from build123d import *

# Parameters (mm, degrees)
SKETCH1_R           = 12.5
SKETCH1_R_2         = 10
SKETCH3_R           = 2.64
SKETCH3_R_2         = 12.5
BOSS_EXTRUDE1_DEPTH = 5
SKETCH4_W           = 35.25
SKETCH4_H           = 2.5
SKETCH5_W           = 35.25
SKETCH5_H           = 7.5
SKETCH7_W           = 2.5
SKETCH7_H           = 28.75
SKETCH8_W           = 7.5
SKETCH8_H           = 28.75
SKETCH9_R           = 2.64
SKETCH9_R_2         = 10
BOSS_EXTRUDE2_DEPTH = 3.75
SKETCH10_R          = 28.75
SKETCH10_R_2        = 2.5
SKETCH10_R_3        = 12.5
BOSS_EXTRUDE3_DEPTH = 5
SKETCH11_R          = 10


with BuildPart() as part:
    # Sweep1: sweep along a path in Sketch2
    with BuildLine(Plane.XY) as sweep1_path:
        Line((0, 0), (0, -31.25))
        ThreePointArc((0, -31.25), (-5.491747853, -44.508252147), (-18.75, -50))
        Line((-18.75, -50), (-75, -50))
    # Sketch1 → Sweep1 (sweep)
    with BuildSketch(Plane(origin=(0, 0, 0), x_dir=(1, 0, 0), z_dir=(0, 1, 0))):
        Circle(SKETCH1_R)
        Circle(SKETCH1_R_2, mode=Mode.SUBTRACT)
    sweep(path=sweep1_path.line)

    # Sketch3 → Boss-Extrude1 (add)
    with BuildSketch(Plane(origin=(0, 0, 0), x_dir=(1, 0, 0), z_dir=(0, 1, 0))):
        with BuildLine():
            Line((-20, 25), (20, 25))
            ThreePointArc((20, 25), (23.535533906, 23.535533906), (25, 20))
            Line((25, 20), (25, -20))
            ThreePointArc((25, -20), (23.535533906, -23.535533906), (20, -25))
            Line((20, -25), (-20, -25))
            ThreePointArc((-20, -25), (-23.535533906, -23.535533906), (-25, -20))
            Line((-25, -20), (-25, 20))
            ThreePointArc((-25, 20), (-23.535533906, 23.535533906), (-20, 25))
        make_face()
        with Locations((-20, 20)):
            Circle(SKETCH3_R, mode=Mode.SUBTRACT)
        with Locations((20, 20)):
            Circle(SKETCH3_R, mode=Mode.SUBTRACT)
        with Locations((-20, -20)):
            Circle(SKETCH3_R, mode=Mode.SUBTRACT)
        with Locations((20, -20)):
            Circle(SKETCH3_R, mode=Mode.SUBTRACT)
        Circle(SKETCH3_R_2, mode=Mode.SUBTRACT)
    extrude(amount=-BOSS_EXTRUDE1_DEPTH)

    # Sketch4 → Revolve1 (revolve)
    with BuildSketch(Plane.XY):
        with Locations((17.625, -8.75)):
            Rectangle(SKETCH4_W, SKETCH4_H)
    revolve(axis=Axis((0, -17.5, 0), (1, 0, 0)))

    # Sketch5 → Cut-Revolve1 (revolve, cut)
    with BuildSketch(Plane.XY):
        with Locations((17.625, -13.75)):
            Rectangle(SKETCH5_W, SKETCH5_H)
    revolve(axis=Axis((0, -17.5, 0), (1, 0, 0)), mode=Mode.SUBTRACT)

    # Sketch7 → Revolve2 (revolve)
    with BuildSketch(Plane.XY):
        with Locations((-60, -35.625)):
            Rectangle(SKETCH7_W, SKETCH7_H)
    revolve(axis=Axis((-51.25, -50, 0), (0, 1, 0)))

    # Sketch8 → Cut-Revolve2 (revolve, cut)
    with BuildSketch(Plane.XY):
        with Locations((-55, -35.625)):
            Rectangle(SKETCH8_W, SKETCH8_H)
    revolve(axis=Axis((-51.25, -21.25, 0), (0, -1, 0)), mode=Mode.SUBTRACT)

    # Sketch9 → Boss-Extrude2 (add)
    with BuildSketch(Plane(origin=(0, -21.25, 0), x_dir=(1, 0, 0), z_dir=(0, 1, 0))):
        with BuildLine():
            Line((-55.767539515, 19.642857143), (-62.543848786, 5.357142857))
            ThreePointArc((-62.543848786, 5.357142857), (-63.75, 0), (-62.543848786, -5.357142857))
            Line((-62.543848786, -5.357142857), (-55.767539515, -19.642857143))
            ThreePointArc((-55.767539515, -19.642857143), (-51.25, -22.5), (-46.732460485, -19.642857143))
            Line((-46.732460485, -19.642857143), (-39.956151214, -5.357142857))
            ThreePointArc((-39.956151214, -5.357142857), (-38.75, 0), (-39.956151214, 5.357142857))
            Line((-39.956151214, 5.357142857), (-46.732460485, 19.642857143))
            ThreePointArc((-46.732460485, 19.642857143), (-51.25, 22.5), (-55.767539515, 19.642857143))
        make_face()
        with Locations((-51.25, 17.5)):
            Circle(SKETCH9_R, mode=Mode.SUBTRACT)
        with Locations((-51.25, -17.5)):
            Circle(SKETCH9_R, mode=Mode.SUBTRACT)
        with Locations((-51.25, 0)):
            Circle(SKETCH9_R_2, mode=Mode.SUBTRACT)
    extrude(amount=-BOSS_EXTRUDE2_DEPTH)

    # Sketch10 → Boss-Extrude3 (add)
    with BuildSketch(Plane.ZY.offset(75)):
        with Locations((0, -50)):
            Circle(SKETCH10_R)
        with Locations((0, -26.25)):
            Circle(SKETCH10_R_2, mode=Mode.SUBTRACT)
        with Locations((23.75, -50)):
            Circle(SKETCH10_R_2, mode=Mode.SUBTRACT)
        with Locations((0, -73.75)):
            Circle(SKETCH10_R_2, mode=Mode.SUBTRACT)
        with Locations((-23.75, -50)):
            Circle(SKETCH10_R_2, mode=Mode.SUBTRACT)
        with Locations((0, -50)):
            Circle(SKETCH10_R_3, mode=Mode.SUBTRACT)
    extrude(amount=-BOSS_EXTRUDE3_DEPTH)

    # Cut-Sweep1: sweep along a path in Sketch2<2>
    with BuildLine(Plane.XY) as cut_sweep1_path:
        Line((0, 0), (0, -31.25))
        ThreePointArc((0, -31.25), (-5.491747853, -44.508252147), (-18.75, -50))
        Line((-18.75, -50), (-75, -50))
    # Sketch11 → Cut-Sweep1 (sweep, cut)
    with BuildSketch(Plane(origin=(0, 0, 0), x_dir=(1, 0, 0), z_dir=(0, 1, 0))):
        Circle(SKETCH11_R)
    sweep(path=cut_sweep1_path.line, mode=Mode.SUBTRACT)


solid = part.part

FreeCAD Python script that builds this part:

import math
import FreeCAD as App
import Part
import Sketcher

V = App.Vector


def add_polygon(sketch, points):
    """Adds a closed chain of lines whose ends are joined by coincident constraints."""
    first, n = sketch.GeometryCount, len(points)
    for a, b in zip(points, points[1:] + points[:1]):
        sketch.addGeometry(Part.LineSegment(App.Vector(*a, 0), App.Vector(*b, 0)), False)
    for i in range(n):
        sketch.addConstraint(Sketcher.Constraint("Coincident", first + i, 2, first + (i + 1) % n, 1))

doc = App.newDocument("Part")
body = doc.addObject("PartDesign::Body", "Body")

sketch1 = body.newObject("Sketcher::SketchObject", "Sketch")
sketch1.AttachmentSupport = (doc.getObject("XZ_Plane"), [""])
sketch1.MapMode = "FlatFace"
sketch1.addGeometry(Part.Circle(V(0, 0, 0), V(0, 0, 1), 12), False)
sketch1.addGeometry(Part.Circle(V(0, 0, 0), V(0, 0, 1), 10), False)
sketch1.addConstraint(Sketcher.Constraint("Coincident", 0, 3, -1, 1))
sketch1.addConstraint(Sketcher.Constraint("Coincident", 1, 3, -1, 1))
sketch1.addConstraint(Sketcher.Constraint("Diameter", 0, 25.0))
sketch1.addConstraint(Sketcher.Constraint("Diameter", 1, 20.0))

sketch2 = body.newObject("Sketcher::SketchObject", "Sketch001")
sketch2.AttachmentSupport = (doc.getObject("XY_Plane"), [""])
sketch2.MapMode = "FlatFace"
sketch2.addGeometry(Part.LineSegment(V(0, 0, 0), V(0, -31, 0)), False)
sketch2.addGeometry(Part.ArcOfCircle(Part.Circle(V(-19, -31, 0), V(0, 0, 1), 19), math.radians(-90), math.radians(0)), False)
sketch2.addGeometry(Part.LineSegment(V(-19, -50, 0), V(-75, -50, 0)), False)
sketch2.addConstraint(Sketcher.Constraint("Tangent", 0, 2, 1, 2))
sketch2.addConstraint(Sketcher.Constraint("Tangent", 1, 1, 2, 1))
sketch2.addConstraint(Sketcher.Constraint("Vertical", 0))
sketch2.addConstraint(Sketcher.Constraint("Horizontal", 2))
sketch2.addConstraint(Sketcher.Constraint("Coincident", 0, 1, -1, 1))
sketch2.addConstraint(Sketcher.Constraint("Radius", 1, 18.75))
sketch2.addConstraint(Sketcher.Constraint("DistanceY", 1, 1, -1, 1, 50.0))
sketch2.addConstraint(Sketcher.Constraint("DistanceX", 2, 2, -1, 1, 75.0))
doc.recompute()

additivepipe = body.newObject("PartDesign::AdditivePipe", "AdditivePipe")
additivepipe.Profile = sketch1
additivepipe.Spine = (sketch2, ["Edge1", "Edge2", "Edge3"])

sketch3 = body.newObject("Sketcher::SketchObject", "Sketch002")
sketch3.AttachmentSupport = (doc.getObject("XZ_Plane"), [""])
sketch3.MapMode = "FlatFace"
sketch3.addGeometry(Part.LineSegment(V(20, -25, 0), V(-20, -25, 0)), False)
sketch3.addGeometry(Part.ArcOfCircle(Part.Circle(V(-20, -20, 0), V(0, 0, 1), 5), math.radians(180), math.radians(270)), False)
sketch3.addGeometry(Part.LineSegment(V(-25, -20, 0), V(-25, 20, 0)), False)
sketch3.addGeometry(Part.ArcOfCircle(Part.Circle(V(-20, 20, 0), V(0, 0, 1), 5), math.radians(90), math.radians(180)), False)
sketch3.addGeometry(Part.LineSegment(V(-20, 25, 0), V(20, 25, 0)), False)
sketch3.addGeometry(Part.ArcOfCircle(Part.Circle(V(20, 20, 0), V(0, 0, 1), 5), math.radians(0), math.radians(90)), False)
sketch3.addGeometry(Part.LineSegment(V(25, 20, 0), V(25, -20, 0)), False)
sketch3.addGeometry(Part.ArcOfCircle(Part.Circle(V(20, -20, 0), V(0, 0, 1), 5), math.radians(-90), math.radians(0)), False)
sketch3.addGeometry(Part.Circle(V(20, 20, 0), V(0, 0, 1), 2.6), False)
sketch3.addGeometry(Part.Circle(V(-20, 20, 0), V(0, 0, 1), 2.6), False)
sketch3.addGeometry(Part.Circle(V(20, -20, 0), V(0, 0, 1), 2.6), False)
sketch3.addGeometry(Part.Circle(V(0, 0, 0), V(0, 0, 1), 12.5), False)
sketch3.addGeometry(Part.Circle(V(-20, -20, 0), V(0, 0, 1), 2.6), False)
sketch3.addConstraint(Sketcher.Constraint("Tangent", 0, 2, 1, 2))
sketch3.addConstraint(Sketcher.Constraint("Tangent", 1, 1, 2, 1))
sketch3.addConstraint(Sketcher.Constraint("Tangent", 2, 2, 3, 2))
sketch3.addConstraint(Sketcher.Constraint("Tangent", 3, 1, 4, 1))
sketch3.addConstraint(Sketcher.Constraint("Tangent", 4, 2, 5, 2))
sketch3.addConstraint(Sketcher.Constraint("Tangent", 5, 1, 6, 1))
sketch3.addConstraint(Sketcher.Constraint("Tangent", 6, 2, 7, 2))
sketch3.addConstraint(Sketcher.Constraint("Tangent", 7, 1, 0, 1))
sketch3.addConstraint(Sketcher.Constraint("Horizontal", 0))
sketch3.addConstraint(Sketcher.Constraint("Vertical", 2))
sketch3.addConstraint(Sketcher.Constraint("Horizontal", 4))
sketch3.addConstraint(Sketcher.Constraint("Vertical", 6))
sketch3.addConstraint(Sketcher.Constraint("Coincident", 11, 3, -1, 1))
sketch3.addConstraint(Sketcher.Constraint("Coincident", 8, 3, 5, 3))
sketch3.addConstraint(Sketcher.Constraint("Coincident", 9, 3, 3, 3))
sketch3.addConstraint(Sketcher.Constraint("Coincident", 10, 3, 7, 3))
sketch3.addConstraint(Sketcher.Constraint("Coincident", 12, 3, 1, 3))
sketch3.addConstraint(Sketcher.Constraint("Equal", 1, 3))
sketch3.addConstraint(Sketcher.Constraint("Equal", 3, 5))
sketch3.addConstraint(Sketcher.Constraint("Equal", 5, 7))
sketch3.addConstraint(Sketcher.Constraint("Equal", 8, 9))
sketch3.addConstraint(Sketcher.Constraint("Equal", 9, 10))
sketch3.addConstraint(Sketcher.Constraint("Equal", 10, 12))
sketch3.addConstraint(Sketcher.Constraint("Symmetric", 1, 3, 5, 3, -1, 1))
sketch3.addConstraint(Sketcher.Constraint("Equal", 4, 2))
sketch3.addConstraint(Sketcher.Constraint("Diameter", 11, 25.0))
sketch3.addConstraint(Sketcher.Constraint("Radius", 1, 5.0))
sketch3.addConstraint(Sketcher.Constraint("Diameter", 8, 5.28))
sketch3.addConstraint(Sketcher.Constraint("DistanceX", 0, 2, 0, 1, 40.0))
pad1 = body.newObject("PartDesign::Pad", "Pad")
pad1.Profile = sketch3
pad1.Length = 5

sketch4 = body.newObject("Sketcher::SketchObject", "Sketch003")
sketch4.AttachmentSupport = (doc.getObject("XY_Plane"), [""])
sketch4.MapMode = "FlatFace"
add_polygon(sketch4, [(0, -7.5), (0, -10), (35.2, -10), (35.2, -7.5)])
sketch4.addGeometry(Part.LineSegment(V(0, -17.5, 0), V(35.2, -17.5, 0)), True)
sketch4.addConstraint(Sketcher.Constraint("Vertical", 0))
sketch4.addConstraint(Sketcher.Constraint("Horizontal", 1))
sketch4.addConstraint(Sketcher.Constraint("Vertical", 2))
sketch4.addConstraint(Sketcher.Constraint("Horizontal", 3))
sketch4.addConstraint(Sketcher.Constraint("Horizontal", 4))
sketch4.addConstraint(Sketcher.Constraint("PointOnObject", 0, 2, -2))
sketch4.addConstraint(Sketcher.Constraint("PointOnObject", 4, 1, -2))
sketch4.addConstraint(Sketcher.Constraint("Vertical", 2, 2, 4, 2))
sketch4.addConstraint(Sketcher.Constraint("DistanceY", 0, 2, 0, 1, 2.5))
sketch4.addConstraint(Sketcher.Constraint("DistanceY", 0, 2, -1, 1, 10.0))
sketch4.addConstraint(Sketcher.Constraint("DistanceY", 4, 1, 3, 2, 10.0))
sketch4.addConstraint(Sketcher.Constraint("DistanceX", 1, 1, 1, 2, 35.25))
revolution = body.newObject("PartDesign::Revolution", "Revolution")
revolution.Profile = sketch4
revolution.ReferenceAxis = (sketch4, ["Axis0"])
revolution.Angle = 360

sketch5 = body.newObject("Sketcher::SketchObject", "Sketch004")
sketch5.AttachmentSupport = (doc.getObject("XY_Plane"), [""])
sketch5.MapMode = "FlatFace"
add_polygon(sketch5, [(0, -10), (0, -18), (35, -18), (35, -10)])
sketch5.addGeometry(Part.LineSegment(V(0, -18, 0), V(35, -18, 0)), True)
sketch5.addConstraint(Sketcher.Constraint("Vertical", 0))
sketch5.addConstraint(Sketcher.Constraint("Horizontal", 1))
sketch5.addConstraint(Sketcher.Constraint("Vertical", 2))
sketch5.addConstraint(Sketcher.Constraint("Horizontal", 3))
sketch5.addConstraint(Sketcher.Constraint("Horizontal", 4))
sketch5.addConstraint(Sketcher.Constraint("Coincident", 4, 1, 0, 2))
sketch5.addConstraint(Sketcher.Constraint("PointOnObject", 0, 2, -2))
sketch5.addConstraint(Sketcher.Constraint("Vertical", 2, 2, 4, 2))
sketch5.addConstraint(Sketcher.Constraint("DistanceY", 0, 2, 0, 1, 7.5))
sketch5.addConstraint(Sketcher.Constraint("DistanceY", 2, 2, -1, 1, 10.0))
sketch5.addConstraint(Sketcher.Constraint("DistanceX", 1, 1, 1, 2, 35.25))
groove = body.newObject("PartDesign::Groove", "Groove")
groove.Profile = sketch5
groove.ReferenceAxis = (sketch5, ["Axis0"])
groove.Angle = 360

sketch6 = body.newObject("Sketcher::SketchObject", "Sketch005")
sketch6.AttachmentSupport = (doc.getObject("XY_Plane"), [""])
sketch6.MapMode = "FlatFace"
add_polygon(sketch6, [(-61.2, -21.2), (-61.2, -50), (-58.8, -50), (-58.8, -21.2)])
sketch6.addGeometry(Part.LineSegment(V(-51.2, -50, 0), V(-51.2, -21.2, 0)), True)
sketch6.addConstraint(Sketcher.Constraint("Vertical", 0))
sketch6.addConstraint(Sketcher.Constraint("Horizontal", 1))
sketch6.addConstraint(Sketcher.Constraint("Vertical", 2))
sketch6.addConstraint(Sketcher.Constraint("Horizontal", 3))
sketch6.addConstraint(Sketcher.Constraint("Vertical", 4))
sketch6.addConstraint(Sketcher.Constraint("Horizontal", 1, 2, 4, 1))
sketch6.addConstraint(Sketcher.Constraint("Horizontal", 3, 2, 4, 2))
sketch6.addConstraint(Sketcher.Constraint("DistanceX", 1, 1, 1, 2, 2.5))
sketch6.addConstraint(Sketcher.Constraint("DistanceY", 0, 2, -1, 1, 50.0))
sketch6.addConstraint(Sketcher.Constraint("DistanceX", 0, 2, 4, 1, 10.0))
sketch6.addConstraint(Sketcher.Constraint("DistanceY", 0, 2, 0, 1, 28.75))
sketch6.addConstraint(Sketcher.Constraint("DistanceX", 0, 2, -1, 1, 61.25))
revolution2 = body.newObject("PartDesign::Revolution", "Revolution001")
revolution2.Profile = sketch6
revolution2.ReferenceAxis = (sketch6, ["Axis0"])
revolution2.Angle = 360

sketch7 = body.newObject("Sketcher::SketchObject", "Sketch006")
sketch7.AttachmentSupport = (doc.getObject("XY_Plane"), [""])
sketch7.MapMode = "FlatFace"
add_polygon(sketch7, [(-59, -21), (-59, -50), (-51, -50), (-51, -21)])
sketch7.addGeometry(Part.LineSegment(V(-51, -21, 0), V(-51, -50, 0)), True)
sketch7.addConstraint(Sketcher.Constraint("Vertical", 0))
sketch7.addConstraint(Sketcher.Constraint("Horizontal", 1))
sketch7.addConstraint(Sketcher.Constraint("Vertical", 2))
sketch7.addConstraint(Sketcher.Constraint("Horizontal", 3))
sketch7.addConstraint(Sketcher.Constraint("Vertical", 4))
sketch7.addConstraint(Sketcher.Constraint("Coincident", 4, 1, 2, 2))
sketch7.addConstraint(Sketcher.Constraint("Horizontal", 0, 2, 4, 2))
sketch7.addConstraint(Sketcher.Constraint("DistanceX", 1, 1, 1, 2, 7.5))
sketch7.addConstraint(Sketcher.Constraint("DistanceY", 0, 2, -1, 1, 50.0))
sketch7.addConstraint(Sketcher.Constraint("DistanceY", 0, 2, 0, 1, 28.75))
sketch7.addConstraint(Sketcher.Constraint("DistanceX", 0, 2, -1, 1, 58.75))
groove2 = body.newObject("PartDesign::Groove", "Groove001")
groove2.Profile = sketch7
groove2.ReferenceAxis = (sketch7, ["Axis0"])
groove2.Angle = 360

sketch8 = body.newObject("Sketcher::SketchObject", "Sketch007")
sketch8.AttachmentSupport = (doc.getObject("XZ_Plane"), [""])
sketch8.MapMode = "FlatFace"
sketch8.AttachmentOffset = App.Placement(V(0, 0, 21.25), App.Rotation())
sketch8.addGeometry(Part.LineSegment(V(-55.8, -19.6, 0), V(-62.5, -5.4, 0)), False)
sketch8.addGeometry(Part.ArcOfCircle(Part.Circle(V(-51.3, 0, 0), V(0, 0, 1), 12.5), math.radians(155), math.radians(205)), False)
sketch8.addGeometry(Part.LineSegment(V(-62.5, 5.4, 0), V(-55.8, 19.6, 0)), False)
sketch8.addGeometry(Part.ArcOfCircle(Part.Circle(V(-51.2, 17.5, 0), V(0, 0, 1), 5), math.radians(25), math.radians(155)), False)
sketch8.addGeometry(Part.LineSegment(V(-46.7, 19.6, 0), V(-40, 5.4, 0)), False)
sketch8.addGeometry(Part.ArcOfCircle(Part.Circle(V(-51.2, 0, 0), V(0, 0, 1), 12.5), math.radians(-25), math.radians(25)), False)
sketch8.addGeometry(Part.LineSegment(V(-40, -5.4, 0), V(-46.7, -19.6, 0)), False)
sketch8.addGeometry(Part.ArcOfCircle(Part.Circle(V(-51.2, -17.5, 0), V(0, 0, 1), 5), math.radians(-155), math.radians(-25)), False)
sketch8.addGeometry(Part.Circle(V(-51.2, 17.5, 0), V(0, 0, 1), 2.6), False)
sketch8.addGeometry(Part.Circle(V(-51.2, 0, 0), V(0, 0, 1), 10), False)
sketch8.addGeometry(Part.Circle(V(-51.2, -17.5, 0), V(0, 0, 1), 2.6), False)
sketch8.addConstraint(Sketcher.Constraint("Tangent", 0, 2, 1, 2))
sketch8.addConstraint(Sketcher.Constraint("Tangent", 1, 1, 2, 1))
sketch8.addConstraint(Sketcher.Constraint("Tangent", 2, 2, 3, 2))
sketch8.addConstraint(Sketcher.Constraint("Tangent", 3, 1, 4, 1))
sketch8.addConstraint(Sketcher.Constraint("Tangent", 4, 2, 5, 2))
sketch8.addConstraint(Sketcher.Constraint("Tangent", 5, 1, 6, 1))
sketch8.addConstraint(Sketcher.Constraint("Tangent", 6, 2, 7, 2))
sketch8.addConstraint(Sketcher.Constraint("Tangent", 7, 1, 0, 1))
sketch8.addConstraint(Sketcher.Constraint("Coincident", 5, 3, 1, 3))
sketch8.addConstraint(Sketcher.Constraint("Coincident", 8, 3, 3, 3))
sketch8.addConstraint(Sketcher.Constraint("Coincident", 9, 3, 1, 3))
sketch8.addConstraint(Sketcher.Constraint("Coincident", 10, 3, 7, 3))
sketch8.addConstraint(Sketcher.Constraint("Equal", 1, 5))
sketch8.addConstraint(Sketcher.Constraint("Equal", 3, 7))
sketch8.addConstraint(Sketcher.Constraint("Equal", 8, 10))
sketch8.addConstraint(Sketcher.Constraint("Symmetric", 3, 3, 7, 3, -1))
sketch8.addConstraint(Sketcher.Constraint("PointOnObject", 1, 3, -1))
sketch8.addConstraint(Sketcher.Constraint("Parallel", 0, 4))
sketch8.addConstraint(Sketcher.Constraint("Diameter", 9, 20.0))
sketch8.addConstraint(Sketcher.Constraint("Radius", 3, 5.0))
sketch8.addConstraint(Sketcher.Constraint("Radius", 1, 12.5))
sketch8.addConstraint(Sketcher.Constraint("Diameter", 8, 5.28))
sketch8.addConstraint(Sketcher.Constraint("DistanceY", 7, 3, 3, 3, 35.0))
sketch8.addConstraint(Sketcher.Constraint("DistanceX", 1, 3, -1, 1, 51.25))
pad2 = body.newObject("PartDesign::Pad", "Pad001")
pad2.Profile = sketch8
pad2.Length = 3.75

sketch9 = body.newObject("Sketcher::SketchObject", "Sketch008")
sketch9.AttachmentSupport = (doc.getObject("YZ_Plane"), [""])
sketch9.MapMode = "FlatFace"
sketch9.AttachmentOffset = App.Placement(V(0, 0, -75), App.Rotation())
sketch9.addGeometry(Part.Circle(V(-50, 0, 0), V(0, 0, 1), 28.8), False)
sketch9.addGeometry(Part.Circle(V(-73.8, 0, 0), V(0, 0, 1), 2.5), False)
sketch9.addGeometry(Part.Circle(V(-50, -23.8, 0), V(0, 0, 1), 2.5), False)
sketch9.addGeometry(Part.Circle(V(-50, 0, 0), V(0, 0, 1), 12.5), False)
sketch9.addGeometry(Part.Circle(V(-50, 23.8, 0), V(0, 0, 1), 2.5), False)
sketch9.addGeometry(Part.Circle(V(-26.2, 0, 0), V(0, 0, 1), 2.5), False)
sketch9.addConstraint(Sketcher.Constraint("Coincident", 3, 3, 0, 3))
sketch9.addConstraint(Sketcher.Constraint("Equal", 1, 2))
sketch9.addConstraint(Sketcher.Constraint("Equal", 2, 4))
sketch9.addConstraint(Sketcher.Constraint("Equal", 4, 5))
sketch9.addConstraint(Sketcher.Constraint("Symmetric", 2, 3, 4, 3, -1))
sketch9.addConstraint(Sketcher.Constraint("PointOnObject", 0, 3, -1))
sketch9.addConstraint(Sketcher.Constraint("PointOnObject", 1, 3, -1))
sketch9.addConstraint(Sketcher.Constraint("PointOnObject", 5, 3, -1))
sketch9.addConstraint(Sketcher.Constraint("Vertical", 0, 3, 2, 3))
sketch9.addConstraint(Sketcher.Constraint("Diameter", 1, 5.0))
sketch9.addConstraint(Sketcher.Constraint("Diameter", 3, 25.0))
sketch9.addConstraint(Sketcher.Constraint("Diameter", 0, 57.5))
sketch9.addConstraint(Sketcher.Constraint("DistanceX", 0, 3, -1, 1, 50.0))
sketch9.addConstraint(Sketcher.Constraint("DistanceY", 2, 3, 4, 3, 47.5))
sketch9.addConstraint(Sketcher.Constraint("DistanceX", 1, 3, 5, 3, 47.5))
sketch9.addConstraint(Sketcher.Constraint("DistanceX", 1, 3, -1, 1, 73.75))
pad3 = body.newObject("PartDesign::Pad", "Pad002")
pad3.Profile = sketch9
pad3.Length = 5

sketch10 = body.newObject("Sketcher::SketchObject", "Sketch009")
sketch10.AttachmentSupport = (doc.getObject("XZ_Plane"), [""])
sketch10.MapMode = "FlatFace"
sketch10.addGeometry(Part.Circle(V(0, 0, 0), V(0, 0, 1), 10), False)
sketch10.addConstraint(Sketcher.Constraint("Coincident", 0, 3, -1, 1))
sketch10.addConstraint(Sketcher.Constraint("Diameter", 0, 20.0))

sketch11 = body.newObject("Sketcher::SketchObject", "Sketch010")
sketch11.AttachmentSupport = (doc.getObject("XY_Plane"), [""])
sketch11.MapMode = "FlatFace"
sketch11.addGeometry(Part.LineSegment(V(0, 0, 0), V(0, -31, 0)), False)
sketch11.addGeometry(Part.ArcOfCircle(Part.Circle(V(-19, -31, 0), V(0, 0, 1), 19), math.radians(-90), math.radians(0)), False)
sketch11.addGeometry(Part.LineSegment(V(-19, -50, 0), V(-75, -50, 0)), False)
sketch11.addConstraint(Sketcher.Constraint("Tangent", 0, 2, 1, 2))
sketch11.addConstraint(Sketcher.Constraint("Tangent", 1, 1, 2, 1))
sketch11.addConstraint(Sketcher.Constraint("Vertical", 0))
sketch11.addConstraint(Sketcher.Constraint("Horizontal", 2))
sketch11.addConstraint(Sketcher.Constraint("Coincident", 0, 1, -1, 1))
sketch11.addConstraint(Sketcher.Constraint("Radius", 1, 18.75))
sketch11.addConstraint(Sketcher.Constraint("DistanceY", 1, 1, -1, 1, 50.0))
sketch11.addConstraint(Sketcher.Constraint("DistanceX", 2, 2, -1, 1, 75.0))
doc.recompute()

subtractivepipe = body.newObject("PartDesign::SubtractivePipe", "SubtractivePipe")
subtractivepipe.Profile = sketch10
subtractivepipe.Spine = (sketch11, ["Edge1", "Edge2", "Edge3"])

doc.recompute()
